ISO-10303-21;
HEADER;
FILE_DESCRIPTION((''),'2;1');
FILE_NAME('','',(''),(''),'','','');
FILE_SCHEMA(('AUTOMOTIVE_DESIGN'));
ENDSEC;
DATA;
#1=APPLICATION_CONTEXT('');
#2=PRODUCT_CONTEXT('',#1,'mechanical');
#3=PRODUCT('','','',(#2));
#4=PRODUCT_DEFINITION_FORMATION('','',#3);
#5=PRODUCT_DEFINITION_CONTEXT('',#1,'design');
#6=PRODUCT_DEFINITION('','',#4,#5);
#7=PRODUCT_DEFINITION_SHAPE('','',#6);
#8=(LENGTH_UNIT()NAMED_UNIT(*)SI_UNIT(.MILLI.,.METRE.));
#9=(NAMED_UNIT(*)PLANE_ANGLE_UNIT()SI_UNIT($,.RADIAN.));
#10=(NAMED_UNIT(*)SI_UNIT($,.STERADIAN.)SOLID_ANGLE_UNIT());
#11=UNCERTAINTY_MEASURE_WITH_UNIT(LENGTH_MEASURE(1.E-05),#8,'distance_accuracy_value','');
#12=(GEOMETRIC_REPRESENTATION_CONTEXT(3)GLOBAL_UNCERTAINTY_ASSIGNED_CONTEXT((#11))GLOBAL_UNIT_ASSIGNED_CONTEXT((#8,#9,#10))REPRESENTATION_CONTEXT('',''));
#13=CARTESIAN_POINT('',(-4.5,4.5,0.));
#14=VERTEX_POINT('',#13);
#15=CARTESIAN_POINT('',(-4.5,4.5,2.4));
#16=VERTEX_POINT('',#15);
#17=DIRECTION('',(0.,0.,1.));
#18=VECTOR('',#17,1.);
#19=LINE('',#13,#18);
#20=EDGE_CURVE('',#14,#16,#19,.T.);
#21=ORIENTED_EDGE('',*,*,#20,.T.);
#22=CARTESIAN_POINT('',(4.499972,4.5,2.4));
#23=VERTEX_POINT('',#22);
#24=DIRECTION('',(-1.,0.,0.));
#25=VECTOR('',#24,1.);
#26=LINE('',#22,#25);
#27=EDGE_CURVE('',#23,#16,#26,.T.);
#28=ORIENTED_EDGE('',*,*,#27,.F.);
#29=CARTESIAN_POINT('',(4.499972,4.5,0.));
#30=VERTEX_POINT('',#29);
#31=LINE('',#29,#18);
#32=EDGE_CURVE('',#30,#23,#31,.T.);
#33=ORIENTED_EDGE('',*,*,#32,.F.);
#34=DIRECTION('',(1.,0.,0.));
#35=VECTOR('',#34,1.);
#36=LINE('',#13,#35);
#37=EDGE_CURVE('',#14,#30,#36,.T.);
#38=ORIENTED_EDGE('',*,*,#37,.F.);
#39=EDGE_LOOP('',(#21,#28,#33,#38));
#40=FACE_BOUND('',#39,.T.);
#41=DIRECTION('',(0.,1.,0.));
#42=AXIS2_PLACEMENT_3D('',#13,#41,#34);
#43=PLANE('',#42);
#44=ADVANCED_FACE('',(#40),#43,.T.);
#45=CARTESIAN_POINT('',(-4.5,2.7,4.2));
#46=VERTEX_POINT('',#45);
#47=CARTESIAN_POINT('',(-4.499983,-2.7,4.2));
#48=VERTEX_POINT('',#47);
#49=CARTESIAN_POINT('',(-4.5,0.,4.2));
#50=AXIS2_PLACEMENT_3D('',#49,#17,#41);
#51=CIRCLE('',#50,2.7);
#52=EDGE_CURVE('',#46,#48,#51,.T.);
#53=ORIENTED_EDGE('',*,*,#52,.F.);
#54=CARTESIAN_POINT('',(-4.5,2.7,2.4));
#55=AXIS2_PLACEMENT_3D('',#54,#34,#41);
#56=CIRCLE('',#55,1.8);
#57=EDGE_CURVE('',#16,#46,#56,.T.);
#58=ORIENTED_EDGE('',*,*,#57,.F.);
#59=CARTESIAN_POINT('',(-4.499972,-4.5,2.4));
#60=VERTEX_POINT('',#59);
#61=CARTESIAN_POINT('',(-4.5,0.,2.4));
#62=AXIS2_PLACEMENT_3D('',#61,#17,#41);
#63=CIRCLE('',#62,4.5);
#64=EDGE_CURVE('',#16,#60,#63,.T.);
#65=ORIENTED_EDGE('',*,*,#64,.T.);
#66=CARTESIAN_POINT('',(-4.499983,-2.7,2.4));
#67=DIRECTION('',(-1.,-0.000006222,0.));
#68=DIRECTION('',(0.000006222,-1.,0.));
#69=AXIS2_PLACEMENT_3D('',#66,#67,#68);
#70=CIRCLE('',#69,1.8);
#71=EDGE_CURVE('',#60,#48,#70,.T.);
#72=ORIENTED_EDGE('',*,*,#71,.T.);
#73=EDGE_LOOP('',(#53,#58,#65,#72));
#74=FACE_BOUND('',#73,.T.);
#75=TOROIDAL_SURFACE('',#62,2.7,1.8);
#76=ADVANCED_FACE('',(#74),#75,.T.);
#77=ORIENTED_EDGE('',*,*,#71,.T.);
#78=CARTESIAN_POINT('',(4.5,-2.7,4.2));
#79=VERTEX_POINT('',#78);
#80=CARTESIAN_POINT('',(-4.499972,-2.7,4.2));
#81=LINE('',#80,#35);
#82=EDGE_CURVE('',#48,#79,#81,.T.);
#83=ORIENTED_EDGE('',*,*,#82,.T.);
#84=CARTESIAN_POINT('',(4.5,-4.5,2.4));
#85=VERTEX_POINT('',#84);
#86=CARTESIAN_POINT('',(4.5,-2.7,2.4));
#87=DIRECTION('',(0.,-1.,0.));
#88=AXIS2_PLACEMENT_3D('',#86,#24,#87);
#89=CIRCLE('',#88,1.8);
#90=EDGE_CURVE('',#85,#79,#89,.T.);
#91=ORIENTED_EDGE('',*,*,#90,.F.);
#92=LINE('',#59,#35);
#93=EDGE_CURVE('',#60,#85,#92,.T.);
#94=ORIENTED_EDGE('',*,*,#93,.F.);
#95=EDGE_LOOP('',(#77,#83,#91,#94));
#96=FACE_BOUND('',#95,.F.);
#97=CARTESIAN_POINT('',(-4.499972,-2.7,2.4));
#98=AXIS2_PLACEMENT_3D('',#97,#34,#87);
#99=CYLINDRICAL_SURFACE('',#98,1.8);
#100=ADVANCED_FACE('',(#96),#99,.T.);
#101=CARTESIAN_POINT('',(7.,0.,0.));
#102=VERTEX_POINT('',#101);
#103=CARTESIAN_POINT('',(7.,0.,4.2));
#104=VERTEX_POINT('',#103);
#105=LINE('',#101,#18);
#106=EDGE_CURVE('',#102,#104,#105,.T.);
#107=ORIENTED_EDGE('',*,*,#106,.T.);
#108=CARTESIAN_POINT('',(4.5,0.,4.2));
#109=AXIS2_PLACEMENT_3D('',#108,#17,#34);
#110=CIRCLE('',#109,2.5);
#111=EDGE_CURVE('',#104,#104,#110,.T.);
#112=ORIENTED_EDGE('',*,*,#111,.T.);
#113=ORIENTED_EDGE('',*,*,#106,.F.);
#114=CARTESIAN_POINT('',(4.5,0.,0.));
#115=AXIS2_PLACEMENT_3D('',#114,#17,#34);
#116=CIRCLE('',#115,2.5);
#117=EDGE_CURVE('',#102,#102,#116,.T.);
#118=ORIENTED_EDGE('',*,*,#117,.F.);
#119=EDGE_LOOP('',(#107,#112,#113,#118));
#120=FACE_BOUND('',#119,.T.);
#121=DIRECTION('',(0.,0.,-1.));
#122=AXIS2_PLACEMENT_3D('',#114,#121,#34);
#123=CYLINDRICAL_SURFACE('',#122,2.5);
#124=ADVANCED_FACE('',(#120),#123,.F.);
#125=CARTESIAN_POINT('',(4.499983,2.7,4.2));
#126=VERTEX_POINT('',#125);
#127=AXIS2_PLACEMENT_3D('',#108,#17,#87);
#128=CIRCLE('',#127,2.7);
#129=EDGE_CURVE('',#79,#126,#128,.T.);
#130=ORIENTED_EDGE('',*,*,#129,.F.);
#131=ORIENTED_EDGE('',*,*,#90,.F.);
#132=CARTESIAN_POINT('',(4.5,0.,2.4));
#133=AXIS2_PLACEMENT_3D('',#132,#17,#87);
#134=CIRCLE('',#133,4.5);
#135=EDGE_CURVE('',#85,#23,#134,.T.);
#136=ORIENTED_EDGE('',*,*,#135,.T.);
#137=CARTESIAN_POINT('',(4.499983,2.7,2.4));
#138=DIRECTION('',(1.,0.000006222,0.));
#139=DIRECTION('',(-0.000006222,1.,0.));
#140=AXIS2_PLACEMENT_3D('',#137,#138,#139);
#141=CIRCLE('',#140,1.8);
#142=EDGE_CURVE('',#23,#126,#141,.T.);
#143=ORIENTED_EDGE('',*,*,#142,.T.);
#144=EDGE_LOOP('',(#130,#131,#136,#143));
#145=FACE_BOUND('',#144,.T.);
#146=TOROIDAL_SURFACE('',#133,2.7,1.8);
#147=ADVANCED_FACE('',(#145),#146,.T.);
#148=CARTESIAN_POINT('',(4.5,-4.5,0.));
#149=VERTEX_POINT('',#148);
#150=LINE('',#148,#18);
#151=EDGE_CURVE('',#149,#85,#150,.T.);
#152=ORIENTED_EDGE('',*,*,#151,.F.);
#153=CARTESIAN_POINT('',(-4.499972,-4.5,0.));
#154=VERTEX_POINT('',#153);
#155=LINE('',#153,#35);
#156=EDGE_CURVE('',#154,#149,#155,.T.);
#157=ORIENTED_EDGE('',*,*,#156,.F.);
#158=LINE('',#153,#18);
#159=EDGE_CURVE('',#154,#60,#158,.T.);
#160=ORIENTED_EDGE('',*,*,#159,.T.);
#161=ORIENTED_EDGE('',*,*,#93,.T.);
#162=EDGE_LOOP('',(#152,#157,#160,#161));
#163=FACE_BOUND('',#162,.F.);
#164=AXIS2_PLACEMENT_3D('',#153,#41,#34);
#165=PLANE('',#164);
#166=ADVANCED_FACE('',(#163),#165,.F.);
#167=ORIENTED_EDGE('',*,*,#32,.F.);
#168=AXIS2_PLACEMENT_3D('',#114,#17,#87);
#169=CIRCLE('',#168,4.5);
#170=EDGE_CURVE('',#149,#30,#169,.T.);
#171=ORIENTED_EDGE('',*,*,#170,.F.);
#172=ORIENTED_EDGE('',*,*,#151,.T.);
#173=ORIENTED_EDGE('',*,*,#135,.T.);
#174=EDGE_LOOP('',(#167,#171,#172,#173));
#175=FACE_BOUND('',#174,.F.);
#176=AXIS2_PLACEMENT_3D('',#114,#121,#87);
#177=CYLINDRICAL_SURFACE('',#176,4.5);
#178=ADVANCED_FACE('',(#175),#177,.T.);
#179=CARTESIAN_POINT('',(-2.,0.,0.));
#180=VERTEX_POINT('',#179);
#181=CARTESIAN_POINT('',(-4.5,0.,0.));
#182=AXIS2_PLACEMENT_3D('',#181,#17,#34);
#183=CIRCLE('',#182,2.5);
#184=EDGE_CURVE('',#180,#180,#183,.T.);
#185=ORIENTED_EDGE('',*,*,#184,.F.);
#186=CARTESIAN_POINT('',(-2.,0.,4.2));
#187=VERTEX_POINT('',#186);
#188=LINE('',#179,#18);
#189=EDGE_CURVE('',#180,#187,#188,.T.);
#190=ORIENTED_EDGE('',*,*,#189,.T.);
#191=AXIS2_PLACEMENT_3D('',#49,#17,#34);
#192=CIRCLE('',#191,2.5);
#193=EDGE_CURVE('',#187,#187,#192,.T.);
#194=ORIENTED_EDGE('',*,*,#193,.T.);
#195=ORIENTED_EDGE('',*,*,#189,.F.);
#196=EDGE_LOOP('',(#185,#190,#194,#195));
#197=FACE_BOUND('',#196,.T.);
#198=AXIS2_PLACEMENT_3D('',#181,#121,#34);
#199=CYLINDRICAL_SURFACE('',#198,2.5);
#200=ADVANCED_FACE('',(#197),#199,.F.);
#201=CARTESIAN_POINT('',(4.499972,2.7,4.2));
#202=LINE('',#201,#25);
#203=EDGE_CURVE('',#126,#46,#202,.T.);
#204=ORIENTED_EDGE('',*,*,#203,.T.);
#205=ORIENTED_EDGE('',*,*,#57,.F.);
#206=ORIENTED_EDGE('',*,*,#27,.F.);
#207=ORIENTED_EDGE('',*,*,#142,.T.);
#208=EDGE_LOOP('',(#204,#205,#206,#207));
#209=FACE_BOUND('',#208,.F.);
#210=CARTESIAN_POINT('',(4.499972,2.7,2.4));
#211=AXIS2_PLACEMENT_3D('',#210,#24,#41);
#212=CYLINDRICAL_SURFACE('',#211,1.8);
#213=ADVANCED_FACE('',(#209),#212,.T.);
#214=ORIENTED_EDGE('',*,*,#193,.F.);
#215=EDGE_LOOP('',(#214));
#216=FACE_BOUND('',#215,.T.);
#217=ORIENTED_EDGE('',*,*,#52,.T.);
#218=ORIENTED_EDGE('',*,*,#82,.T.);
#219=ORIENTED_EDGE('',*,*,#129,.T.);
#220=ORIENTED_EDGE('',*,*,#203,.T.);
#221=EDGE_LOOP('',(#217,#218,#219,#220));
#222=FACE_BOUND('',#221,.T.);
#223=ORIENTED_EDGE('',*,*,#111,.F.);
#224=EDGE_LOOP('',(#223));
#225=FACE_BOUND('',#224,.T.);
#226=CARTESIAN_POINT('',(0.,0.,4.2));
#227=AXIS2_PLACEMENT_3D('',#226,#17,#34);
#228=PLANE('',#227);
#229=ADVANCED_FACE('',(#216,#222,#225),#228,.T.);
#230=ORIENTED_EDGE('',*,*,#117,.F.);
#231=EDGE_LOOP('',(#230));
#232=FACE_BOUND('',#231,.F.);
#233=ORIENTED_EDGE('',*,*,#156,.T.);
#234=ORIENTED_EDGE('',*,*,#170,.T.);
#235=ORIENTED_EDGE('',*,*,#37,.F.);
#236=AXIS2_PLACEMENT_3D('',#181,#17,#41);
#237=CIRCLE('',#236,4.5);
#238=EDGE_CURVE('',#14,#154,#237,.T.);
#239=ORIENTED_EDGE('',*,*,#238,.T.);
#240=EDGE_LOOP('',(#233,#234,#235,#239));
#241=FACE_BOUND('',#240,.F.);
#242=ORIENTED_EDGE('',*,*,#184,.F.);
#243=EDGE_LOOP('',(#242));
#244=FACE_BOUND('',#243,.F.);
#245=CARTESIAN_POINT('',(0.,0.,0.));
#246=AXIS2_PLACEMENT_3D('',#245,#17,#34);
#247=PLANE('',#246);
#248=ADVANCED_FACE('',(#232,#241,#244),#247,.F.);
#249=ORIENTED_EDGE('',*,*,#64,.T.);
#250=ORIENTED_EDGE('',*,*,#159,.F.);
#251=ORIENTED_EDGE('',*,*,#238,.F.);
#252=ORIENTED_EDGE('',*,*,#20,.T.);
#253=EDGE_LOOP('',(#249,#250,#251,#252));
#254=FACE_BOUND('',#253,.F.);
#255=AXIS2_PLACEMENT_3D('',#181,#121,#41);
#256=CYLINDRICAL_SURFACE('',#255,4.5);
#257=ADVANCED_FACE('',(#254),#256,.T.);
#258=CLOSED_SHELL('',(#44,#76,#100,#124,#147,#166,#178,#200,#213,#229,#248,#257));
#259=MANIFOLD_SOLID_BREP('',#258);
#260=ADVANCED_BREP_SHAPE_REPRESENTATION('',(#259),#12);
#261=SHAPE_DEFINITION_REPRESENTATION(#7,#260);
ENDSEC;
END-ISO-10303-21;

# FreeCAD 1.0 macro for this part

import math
import FreeCAD as App
import Part
import Sketcher


def edges_at(feature, points):
    """Names of the edges that pass closest to the given points."""
    edges = feature.Shape.Edges
    near = lambda p: min(range(len(edges)), key=lambda i: edges[i].distToShape(Part.Vertex(*p))[0])
    return sorted({f"Edge{near(p) + 1}" for p in points})

doc = App.newDocument("Part")
params = doc.addObject("Spreadsheet::Sheet", "Params")
for row, (alias, value) in enumerate([
    ("sketch1_diameter", "5 mm"),
    ("sketch1_radius", "4.5 mm"),
    ("pad1_length", "4.2 mm"),
    ("fillet_radius", "1.8 mm"),
], start=1):
    params.set(f"A{row}", alias)
    params.set(f"B{row}", "=" + value)
    params.setAlias(f"B{row}", alias)

body = doc.addObject("PartDesign::Body", "Body")

# Sketch on XY plane
sketch1 = body.newObject("Sketcher::SketchObject", "Sketch")
sketch1.AttachmentSupport = (doc.getObject("XY_Plane"), [""])
sketch1.MapMode = "FlatFace"
sketch1.addGeometry([
    Part.ArcOfCircle(Part.Circle(App.Vector(-4.5, 0, 0), App.Vector(0, 0, 1), 4.5), math.radians(90), math.radians(270)),  # 0
    Part.LineSegment(App.Vector(-4.5, -4.5, 0), App.Vector(4.5, -4.5, 0)),  # 1
    Part.ArcOfCircle(Part.Circle(App.Vector(4.5, 0, 0), App.Vector(0, 0, 1), 4.5), math.radians(-90), math.radians(90)),  # 2
    Part.LineSegment(App.Vector(4.5, 4.5, 0), App.Vector(-4.5, 4.5, 0)),  # 3
    Part.Circle(App.Vector(-4.5, 0, 0), App.Vector(0, 0, 1), 2.5),  # 4
    Part.Circle(App.Vector(4.5, 0, 0), App.Vector(0, 0, 1), 2.5),  # 5
], False)
sketch1.addConstraint([
    Sketcher.Constraint("Coincident", 0, 2, 1, 1),
    Sketcher.Constraint("Tangent", 1, 2, 2, 1),
    Sketcher.Constraint("Coincident", 2, 2, 3, 1),
    Sketcher.Constraint("Tangent", 3, 2, 0, 1),
    Sketcher.Constraint("Horizontal", 1),
    Sketcher.Constraint("Horizontal", 3),
    Sketcher.Constraint("Coincident", 4, 3, 0, 3),
    Sketcher.Constraint("Coincident", 5, 3, 2, 3),
    Sketcher.Constraint("Equal", 4, 5),
    Sketcher.Constraint("Symmetric", 0, 3, 2, 3, -1, 1),
    Sketcher.Constraint("Equal", 1, 3),
    Sketcher.Constraint("Diameter", 4, 5.0),
    Sketcher.Constraint("Radius", 0, 4.5),
    Sketcher.Constraint("DistanceX", 0, 3, 2, 3, 9.0),
    Sketcher.Constraint("DistanceX", 1, 1, 1, 2, 8.999972),
])
sketch1.setExpression("Constraints[11]", "Params.sketch1_diameter")
sketch1.setExpression("Constraints[12]", "Params.sketch1_radius")
pad1 = body.newObject("PartDesign::Pad", "Pad")
pad1.Profile = sketch1
pad1.setExpression("Length", "Params.pad1_length")
doc.recompute()

fillet = body.newObject("PartDesign::Fillet", "Fillet")
fillet.Base = (pad1, edges_at(pad1, [(9, 0, 4.2)]))
fillet.setExpression("Radius", "Params.fillet_radius")

doc.recompute()
